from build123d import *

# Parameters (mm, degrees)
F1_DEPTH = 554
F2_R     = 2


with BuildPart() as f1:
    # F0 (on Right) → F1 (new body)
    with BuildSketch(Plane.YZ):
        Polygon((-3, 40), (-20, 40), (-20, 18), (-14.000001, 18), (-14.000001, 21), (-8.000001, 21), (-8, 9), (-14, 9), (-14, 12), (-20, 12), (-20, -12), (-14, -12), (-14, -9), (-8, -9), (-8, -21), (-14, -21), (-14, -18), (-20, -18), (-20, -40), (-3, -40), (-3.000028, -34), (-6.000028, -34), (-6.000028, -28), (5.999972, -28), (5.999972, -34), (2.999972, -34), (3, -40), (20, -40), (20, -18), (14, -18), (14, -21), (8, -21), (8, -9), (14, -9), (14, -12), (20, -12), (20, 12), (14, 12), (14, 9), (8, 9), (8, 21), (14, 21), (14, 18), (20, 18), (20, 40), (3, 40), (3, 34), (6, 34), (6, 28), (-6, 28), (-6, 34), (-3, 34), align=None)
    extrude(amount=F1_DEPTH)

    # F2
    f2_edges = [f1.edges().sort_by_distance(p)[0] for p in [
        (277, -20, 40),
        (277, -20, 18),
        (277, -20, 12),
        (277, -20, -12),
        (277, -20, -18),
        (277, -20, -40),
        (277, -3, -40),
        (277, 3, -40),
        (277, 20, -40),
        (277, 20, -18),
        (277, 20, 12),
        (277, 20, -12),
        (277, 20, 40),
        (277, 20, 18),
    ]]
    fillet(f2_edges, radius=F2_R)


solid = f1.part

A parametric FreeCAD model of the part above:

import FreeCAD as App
import Part
import Sketcher
from FreeCAD import Vector


def edges_at(feature, points):
    """Names of the edges that pass closest to the given points."""
    edges = feature.Shape.Edges
    near = lambda p: min(range(len(edges)), key=lambda i: edges[i].distToShape(Part.Vertex(*p))[0])
    return sorted({f"Edge{near(p) + 1}" for p in points})

doc = App.newDocument("Part")
body = doc.addObject("PartDesign::Body", "Body")

# Sketch on YZ plane
sketch1 = doc.addObject("Sketcher::SketchObject", "Sketch")
body.addObject(sketch1)
sketch1.AttachmentSupport = (doc.YZ_Plane, [""])
sketch1.MapMode = "FlatFace"
sketch1.addGeometry(Part.LineSegment(Vector(-3, 40, 0), Vector(-20, 40, 0)), False)
sketch1.addGeometry(Part.LineSegment(Vector(-20, 40, 0), Vector(-20, 18, 0)), False)
sketch1.addGeometry(Part.LineSegment(Vector(-20, 18, 0), Vector(-14, 18, 0)), False)
sketch1.addGeometry(Part.LineSegment(Vector(-14, 18, 0), Vector(-14, 21, 0)), False)
sketch1.addGeometry(Part.LineSegment(Vector(-14, 21, 0), Vector(-8, 21, 0)), False)
sketch1.addGeometry(Part.LineSegment(Vector(-8, 21, 0), Vector(-8, 9, 0)), False)
sketch1.addGeometry(Part.LineSegment(Vector(-8, 9, 0), Vector(-14, 9, 0)), False)
sketch1.addGeometry(Part.LineSegment(Vector(-14, 9, 0), Vector(-14, 12, 0)), False)
sketch1.addGeometry(Part.LineSegment(Vector(-14, 12, 0), Vector(-20, 12, 0)), False)
sketch1.addGeometry(Part.LineSegment(Vector(-20, 12, 0), Vector(-20, -12, 0)), False)
sketch1.addGeometry(Part.LineSegment(Vector(-20, -12, 0), Vector(-14, -12, 0)), False)
sketch1.addGeometry(Part.LineSegment(Vector(-14, -12, 0), Vector(-14, -9, 0)), False)
sketch1.addGeometry(Part.LineSegment(Vector(-14, -9, 0), Vector(-8, -9, 0)), False)
sketch1.addGeometry(Part.LineSegment(Vector(-8, -9, 0), Vector(-8, -21, 0)), False)
sketch1.addGeometry(Part.LineSegment(Vector(-8, -21, 0), Vector(-14, -21, 0)), False)
sketch1.addGeometry(Part.LineSegment(Vector(-14, -21, 0), Vector(-14, -18, 0)), False)
sketch1.addGeometry(Part.LineSegment(Vector(-14, -18, 0), Vector(-20, -18, 0)), False)
sketch1.addGeometry(Part.LineSegment(Vector(-20, -18, 0), Vector(-20, -40, 0)), False)
sketch1.addGeometry(Part.LineSegment(Vector(-20, -40, 0), Vector(-3, -40, 0)), False)
sketch1.addGeometry(Part.LineSegment(Vector(-3, -40, 0), Vector(-3, -34, 0)), False)
sketch1.addGeometry(Part.LineSegment(Vector(-3, -34, 0), Vector(-6, -34, 0)), False)
sketch1.addGeometry(Part.LineSegment(Vector(-6, -34, 0), Vector(-6, -28, 0)), False)
sketch1.addGeometry(Part.LineSegment(Vector(-6, -28, 0), Vector(6, -28, 0)), False)
sketch1.addGeometry(Part.LineSegment(Vector(6, -28, 0), Vector(6, -34, 0)), False)
sketch1.addGeometry(Part.LineSegment(Vector(6, -34, 0), Vector(3, -34, 0)), False)
sketch1.addGeometry(Part.LineSegment(Vector(3, -34, 0), Vector(3, -40, 0)), False)
sketch1.addGeometry(Part.LineSegment(Vector(3, -40, 0), Vector(20, -40, 0)), False)
sketch1.addGeometry(Part.LineSegment(Vector(20, -40, 0), Vector(20, -18, 0)), False)
sketch1.addGeometry(Part.LineSegment(Vector(20, -18, 0), Vector(14, -18, 0)), False)
sketch1.addGeometry(Part.LineSegment(Vector(14, -18, 0), Vector(14, -21, 0)), False)
sketch1.addGeometry(Part.LineSegment(Vector(14, -21, 0), Vector(8, -21, 0)), False)
sketch1.addGeometry(Part.LineSegment(Vector(8, -21, 0), Vector(8, -9, 0)), False)
sketch1.addGeometry(Part.LineSegment(Vector(8, -9, 0), Vector(14, -9, 0)), False)
sketch1.addGeometry(Part.LineSegment(Vector(14, -9, 0), Vector(14, -12, 0)), False)
sketch1.addGeometry(Part.LineSegment(Vector(14, -12, 0), Vector(20, -12, 0)), False)
sketch1.addGeometry(Part.LineSegment(Vector(20, -12, 0), Vector(20, 12, 0)), False)
sketch1.addGeometry(Part.LineSegment(Vector(20, 12, 0), Vector(14, 12, 0)), False)
sketch1.addGeometry(Part.LineSegment(Vector(14, 12, 0), Vector(14, 9, 0)), False)
sketch1.addGeometry(Part.LineSegment(Vector(14, 9, 0), Vector(8, 9, 0)), False)
sketch1.addGeometry(Part.LineSegment(Vector(8, 9, 0), Vector(8, 21, 0)), False)
sketch1.addGeometry(Part.LineSegment(Vector(8, 21, 0), Vector(14, 21, 0)), False)
sketch1.addGeometry(Part.LineSegment(Vector(14, 21, 0), Vector(14, 18, 0)), False)
sketch1.addGeometry(Part.LineSegment(Vector(14, 18, 0), Vector(20, 18, 0)), False)
sketch1.addGeometry(Part.LineSegment(Vector(20, 18, 0), Vector(20, 40, 0)), False)
sketch1.addGeometry(Part.LineSegment(Vector(20, 40, 0), Vector(3, 40, 0)), False)
sketch1.addGeometry(Part.LineSegment(Vector(3, 40, 0), Vector(3, 34, 0)), False)
sketch1.addGeometry(Part.LineSegment(Vector(3, 34, 0), Vector(6, 34, 0)), False)
sketch1.addGeometry(Part.LineSegment(Vector(6, 34, 0), Vector(6, 28, 0)), False)
sketch1.addGeometry(Part.LineSegment(Vector(6, 28, 0), Vector(-6, 28, 0)), False)
sketch1.addGeometry(Part.LineSegment(Vector(-6, 28, 0), Vector(-6, 34, 0)), False)
sketch1.addGeometry(Part.LineSegment(Vector(-6, 34, 0), Vector(-3, 34, 0)), False)
sketch1.addGeometry(Part.LineSegment(Vector(-3, 34, 0), Vector(-3, 40, 0)), False)
sketch1.addConstraint(Sketcher.Constraint("Coincident", 0, 2, 1, 1))
sketch1.addConstraint(Sketcher.Constraint("Coincident", 1, 2, 2, 1))
sketch1.addConstraint(Sketcher.Constraint("Coincident", 2, 2, 3, 1))
sketch1.addConstraint(Sketcher.Constraint("Coincident", 3, 2, 4, 1))
sketch1.addConstraint(Sketcher.Constraint("Coincident", 4, 2, 5, 1))
sketch1.addConstraint(Sketcher.Constraint("Coincident", 5, 2, 6, 1))
sketch1.addConstraint(Sketcher.Constraint("Coincident", 6, 2, 7, 1))
sketch1.addConstraint(Sketcher.Constraint("Coincident", 7, 2, 8, 1))
sketch1.addConstraint(Sketcher.Constraint("Coincident", 8, 2, 9, 1))
sketch1.addConstraint(Sketcher.Constraint("Coincident", 9, 2, 10, 1))
sketch1.addConstraint(Sketcher.Constraint("Coincident", 10, 2, 11, 1))
sketch1.addConstraint(Sketcher.Constraint("Coincident", 11, 2, 12, 1))
sketch1.addConstraint(Sketcher.Constraint("Coincident", 12, 2, 13, 1))
sketch1.addConstraint(Sketcher.Constraint("Coincident", 13, 2, 14, 1))
sketch1.addConstraint(Sketcher.Constraint("Coincident", 14, 2, 15, 1))
sketch1.addConstraint(Sketcher.Constraint("Coincident", 15, 2, 16, 1))
sketch1.addConstraint(Sketcher.Constraint("Coincident", 16, 2, 17, 1))
sketch1.addConstraint(Sketcher.Constraint("Coincident", 17, 2, 18, 1))
sketch1.addConstraint(Sketcher.Constraint("Coincident", 18, 2, 19, 1))
sketch1.addConstraint(Sketcher.Constraint("Coincident", 19, 2, 20, 1))
sketch1.addConstraint(Sketcher.Constraint("Coincident", 20, 2, 21, 1))
sketch1.addConstraint(Sketcher.Constraint("Coincident", 21, 2, 22, 1))
sketch1.addConstraint(Sketcher.Constraint("Coincident", 22, 2, 23, 1))
sketch1.addConstraint(Sketcher.Constraint("Coincident", 23, 2, 24, 1))
sketch1.addConstraint(Sketcher.Constraint("Coincident", 24, 2, 25, 1))
sketch1.addConstraint(Sketcher.Constraint("Coincident", 25, 2, 26, 1))
sketch1.addConstraint(Sketcher.Constraint("Coincident", 26, 2, 27, 1))
sketch1.addConstraint(Sketcher.Constraint("Coincident", 27, 2, 28, 1))
sketch1.addConstraint(Sketcher.Constraint("Coincident", 28, 2, 29, 1))
sketch1.addConstraint(Sketcher.Constraint("Coincident", 29, 2, 30, 1))
sketch1.addConstraint(Sketcher.Constraint("Coincident", 30, 2, 31, 1))
sketch1.addConstraint(Sketcher.Constraint("Coincident", 31, 2, 32, 1))
sketch1.addConstraint(Sketcher.Constraint("Coincident", 32, 2, 33, 1))
sketch1.addConstraint(Sketcher.Constraint("Coincident", 33, 2, 34, 1))
sketch1.addConstraint(Sketcher.Constraint("Coincident", 34, 2, 35, 1))
sketch1.addConstraint(Sketcher.Constraint("Coincident", 35, 2, 36, 1))
sketch1.addConstraint(Sketcher.Constraint("Coincident", 36, 2, 37, 1))
sketch1.addConstraint(Sketcher.Constraint("Coincident", 37, 2, 38, 1))
sketch1.addConstraint(Sketcher.Constraint("Coincident", 38, 2, 39, 1))
sketch1.addConstraint(Sketcher.Constraint("Coincident", 39, 2, 40, 1))
sketch1.addConstraint(Sketcher.Constraint("Coincident", 40, 2, 41, 1))
sketch1.addConstraint(Sketcher.Constraint("Coincident", 41, 2, 42, 1))
sketch1.addConstraint(Sketcher.Constraint("Coincident", 42, 2, 43, 1))
sketch1.addConstraint(Sketcher.Constraint("Coincident", 43, 2, 44, 1))
sketch1.addConstraint(Sketcher.Constraint("Coincident", 44, 2, 45, 1))
sketch1.addConstraint(Sketcher.Constraint("Coincident", 45, 2, 46, 1))
sketch1.addConstraint(Sketcher.Constraint("Coincident", 46, 2, 47, 1))
sketch1.addConstraint(Sketcher.Constraint("Coincident", 47, 2, 48, 1))
sketch1.addConstraint(Sketcher.Constraint("Coincident", 48, 2, 49, 1))
sketch1.addConstraint(Sketcher.Constraint("Coincident", 49, 2, 50, 1))
sketch1.addConstraint(Sketcher.Constraint("Coincident", 50, 2, 51, 1))
sketch1.addConstraint(Sketcher.Constraint("Coincident", 51, 2, 0, 1))
sketch1.addConstraint(Sketcher.Constraint("Horizontal", 0))
sketch1.addConstraint(Sketcher.Constraint("Vertical", 1))
sketch1.addConstraint(Sketcher.Constraint("Horizontal", 2))
sketch1.addConstraint(Sketcher.Constraint("Vertical", 3))
sketch1.addConstraint(Sketcher.Constraint("Horizontal", 4))
sketch1.addConstraint(Sketcher.Constraint("Vertical", 5))
sketch1.addConstraint(Sketcher.Constraint("Horizontal", 6))
sketch1.addConstraint(Sketcher.Constraint("Vertical", 7))
sketch1.addConstraint(Sketcher.Constraint("Horizontal", 8))
sketch1.addConstraint(Sketcher.Constraint("Vertical", 9))
sketch1.addConstraint(Sketcher.Constraint("Horizontal", 10))
sketch1.addConstraint(Sketcher.Constraint("Vertical", 11))
sketch1.addConstraint(Sketcher.Constraint("Horizontal", 12))
sketch1.addConstraint(Sketcher.Constraint("Vertical", 13))
sketch1.addConstraint(Sketcher.Constraint("Horizontal", 14))
sketch1.addConstraint(Sketcher.Constraint("Vertical", 15))
sketch1.addConstraint(Sketcher.Constraint("Horizontal", 16))
sketch1.addConstraint(Sketcher.Constraint("Vertical", 17))
sketch1.addConstraint(Sketcher.Constraint("Horizontal", 18))
sketch1.addConstraint(Sketcher.Constraint("Horizontal", 20))
sketch1.addConstraint(Sketcher.Constraint("Vertical", 21))
sketch1.addConstraint(Sketcher.Constraint("Horizontal", 22))
sketch1.addConstraint(Sketcher.Constraint("Vertical", 23))
sketch1.addConstraint(Sketcher.Constraint("Horizontal", 24))
sketch1.addConstraint(Sketcher.Constraint("Horizontal", 26))
sketch1.addConstraint(Sketcher.Constraint("Vertical", 27))
sketch1.addConstraint(Sketcher.Constraint("Horizontal", 28))
sketch1.addConstraint(Sketcher.Constraint("Vertical", 29))
sketch1.addConstraint(Sketcher.Constraint("Horizontal", 30))
sketch1.addConstraint(Sketcher.Constraint("Vertical", 31))
sketch1.addConstraint(Sketcher.Constraint("Horizontal", 32))
sketch1.addConstraint(Sketcher.Constraint("Vertical", 33))
sketch1.addConstraint(Sketcher.Constraint("Horizontal", 34))
sketch1.addConstraint(Sketcher.Constraint("Vertical", 35))
sketch1.addConstraint(Sketcher.Constraint("Horizontal", 36))
sketch1.addConstraint(Sketcher.Constraint("Vertical", 37))
sketch1.addConstraint(Sketcher.Constraint("Horizontal", 38))
sketch1.addConstraint(Sketcher.Constraint("Vertical", 39))
sketch1.addConstraint(Sketcher.Constraint("Horizontal", 40))
sketch1.addConstraint(Sketcher.Constraint("Vertical", 41))
sketch1.addConstraint(Sketcher.Constraint("Horizontal", 42))
sketch1.addConstraint(Sketcher.Constraint("Vertical", 43))
sketch1.addConstraint(Sketcher.Constraint("Horizontal", 44))
sketch1.addConstraint(Sketcher.Constraint("Vertical", 45))
sketch1.addConstraint(Sketcher.Constraint("Horizontal", 46))
sketch1.addConstraint(Sketcher.Constraint("Vertical", 47))
sketch1.addConstraint(Sketcher.Constraint("Horizontal", 48))
sketch1.addConstraint(Sketcher.Constraint("Vertical", 49))
sketch1.addConstraint(Sketcher.Constraint("Horizontal", 50))
sketch1.addConstraint(Sketcher.Constraint("Vertical", 51))
sketch1.addConstraint(Sketcher.Constraint("Symmetric", 0, 2, 26, 2, -1, 1))
sketch1.addConstraint(Sketcher.Constraint("Symmetric", 2, 2, 28, 2, -1, 1))
sketch1.addConstraint(Sketcher.Constraint("Symmetric", 4, 2, 30, 2, -1, 1))
sketch1.addConstraint(Sketcher.Constraint("Symmetric", 6, 2, 32, 2, -1, 1))
sketch1.addConstraint(Sketcher.Constraint("Symmetric", 8, 2, 34, 2, -1, 1))
sketch1.addConstraint(Sketcher.Constraint("Symmetric", 10, 2, 36, 2, -1, 1))
sketch1.addConstraint(Sketcher.Constraint("Symmetric", 12, 2, 38, 2, -1, 1))
sketch1.addConstraint(Sketcher.Constraint("Symmetric", 14, 2, 40, 2, -1, 1))
sketch1.addConstraint(Sketcher.Constraint("Symmetric", 16, 2, 42, 2, -1, 1))
sketch1.addConstraint(Sketcher.Constraint("Symmetric", 18, 2, 44, 2, -1, 1))
sketch1.addConstraint(Sketcher.Constraint("Symmetric", 18, 2, 25, 2, -2))
sketch1.addConstraint(Sketcher.Constraint("Symmetric", 16, 2, 27, 2, -2))
sketch1.addConstraint(Sketcher.Constraint("Symmetric", 14, 2, 29, 2, -2))
sketch1.addConstraint(Sketcher.Constraint("Symmetric", 12, 2, 31, 2, -2))
sketch1.addConstraint(Sketcher.Constraint("Symmetric", 10, 2, 33, 2, -2))
sketch1.addConstraint(Sketcher.Constraint("Symmetric", 46, 2, 49, 2, -2))
sketch1.addConstraint(Sketcher.Constraint("Parallel", 19, 25))
sketch1.addConstraint(Sketcher.Constraint("Horizontal", 20, 2, 23, 2))
sketch1.addConstraint(Sketcher.Constraint("Vertical", 3, 2, 6, 2))
sketch1.addConstraint(Sketcher.Constraint("Vertical", 1, 2, 8, 2))
sketch1.addConstraint(Sketcher.Constraint("Vertical", 18, 2, 50, 2))
sketch1.addConstraint(Sketcher.Constraint("Equal", 2, 4))
sketch1.addConstraint(Sketcher.Constraint("Equal", 20, 24))
sketch1.addConstraint(Sketcher.Constraint("Equal", 24, 46))
sketch1.addConstraint(Sketcher.Constraint("Equal", 50, 3))
sketch1.addConstraint(Sketcher.Constraint("Equal", 48, 5))
sketch1.addConstraint(Sketcher.Constraint("Equal", 3, 7))
sketch1.addConstraint(Sketcher.Constraint("Equal", 42, 21))
sketch1.addConstraint(Sketcher.Constraint("Equal", 23, 45))
sketch1.addConstraint(Sketcher.Constraint("Equal", 45, 47))
sketch1.addConstraint(Sketcher.Constraint("DistanceX", 0, 2, 0, 1, 17.0))
sketch1.addConstraint(Sketcher.Constraint("DistanceX", 2, 1, 2, 2, 5.999999))
sketch1.addConstraint(Sketcher.Constraint("DistanceX", 20, 2, 20, 1, 3.0))
sketch1.addConstraint(Sketcher.Constraint("DistanceX", 22, 1, 22, 2, 12.0))
sketch1.addConstraint(Sketcher.Constraint("DistanceY", 1, 2, 1, 1, 22.0))
sketch1.addConstraint(Sketcher.Constraint("DistanceY", 9, 2, 9, 1, 24.0))
sketch1.addConstraint(Sketcher.Constraint("Distance", 19, 6.0))
sketch1.addConstraint(Sketcher.Constraint("DistanceX", 20, 2, -1, 1, 6.000028))
pad1 = doc.addObject("PartDesign::Pad", "Pad")
body.addObject(pad1)
pad1.Profile = sketch1
pad1.Length = 554
doc.recompute()

fillet = doc.addObject("PartDesign::Fillet", "Fillet")
body.addObject(fillet)
fillet.Base = (pad1, edges_at(pad1, [
    (277, -20, 40),
    (277, -20, 18),
    (277, -20, 12),
    (277, -20, -12),
    (277, -20, -18),
    (277, -20, -40),
    (277, -3, -40),
    (277, 3, -40),
    (277, 20, -40),
    (277, 20, -18),
    (277, 20, 12),
    (277, 20, -12),
    (277, 20, 40),
    (277, 20, 18),
]))
fillet.Radius = 2

doc.recompute()
